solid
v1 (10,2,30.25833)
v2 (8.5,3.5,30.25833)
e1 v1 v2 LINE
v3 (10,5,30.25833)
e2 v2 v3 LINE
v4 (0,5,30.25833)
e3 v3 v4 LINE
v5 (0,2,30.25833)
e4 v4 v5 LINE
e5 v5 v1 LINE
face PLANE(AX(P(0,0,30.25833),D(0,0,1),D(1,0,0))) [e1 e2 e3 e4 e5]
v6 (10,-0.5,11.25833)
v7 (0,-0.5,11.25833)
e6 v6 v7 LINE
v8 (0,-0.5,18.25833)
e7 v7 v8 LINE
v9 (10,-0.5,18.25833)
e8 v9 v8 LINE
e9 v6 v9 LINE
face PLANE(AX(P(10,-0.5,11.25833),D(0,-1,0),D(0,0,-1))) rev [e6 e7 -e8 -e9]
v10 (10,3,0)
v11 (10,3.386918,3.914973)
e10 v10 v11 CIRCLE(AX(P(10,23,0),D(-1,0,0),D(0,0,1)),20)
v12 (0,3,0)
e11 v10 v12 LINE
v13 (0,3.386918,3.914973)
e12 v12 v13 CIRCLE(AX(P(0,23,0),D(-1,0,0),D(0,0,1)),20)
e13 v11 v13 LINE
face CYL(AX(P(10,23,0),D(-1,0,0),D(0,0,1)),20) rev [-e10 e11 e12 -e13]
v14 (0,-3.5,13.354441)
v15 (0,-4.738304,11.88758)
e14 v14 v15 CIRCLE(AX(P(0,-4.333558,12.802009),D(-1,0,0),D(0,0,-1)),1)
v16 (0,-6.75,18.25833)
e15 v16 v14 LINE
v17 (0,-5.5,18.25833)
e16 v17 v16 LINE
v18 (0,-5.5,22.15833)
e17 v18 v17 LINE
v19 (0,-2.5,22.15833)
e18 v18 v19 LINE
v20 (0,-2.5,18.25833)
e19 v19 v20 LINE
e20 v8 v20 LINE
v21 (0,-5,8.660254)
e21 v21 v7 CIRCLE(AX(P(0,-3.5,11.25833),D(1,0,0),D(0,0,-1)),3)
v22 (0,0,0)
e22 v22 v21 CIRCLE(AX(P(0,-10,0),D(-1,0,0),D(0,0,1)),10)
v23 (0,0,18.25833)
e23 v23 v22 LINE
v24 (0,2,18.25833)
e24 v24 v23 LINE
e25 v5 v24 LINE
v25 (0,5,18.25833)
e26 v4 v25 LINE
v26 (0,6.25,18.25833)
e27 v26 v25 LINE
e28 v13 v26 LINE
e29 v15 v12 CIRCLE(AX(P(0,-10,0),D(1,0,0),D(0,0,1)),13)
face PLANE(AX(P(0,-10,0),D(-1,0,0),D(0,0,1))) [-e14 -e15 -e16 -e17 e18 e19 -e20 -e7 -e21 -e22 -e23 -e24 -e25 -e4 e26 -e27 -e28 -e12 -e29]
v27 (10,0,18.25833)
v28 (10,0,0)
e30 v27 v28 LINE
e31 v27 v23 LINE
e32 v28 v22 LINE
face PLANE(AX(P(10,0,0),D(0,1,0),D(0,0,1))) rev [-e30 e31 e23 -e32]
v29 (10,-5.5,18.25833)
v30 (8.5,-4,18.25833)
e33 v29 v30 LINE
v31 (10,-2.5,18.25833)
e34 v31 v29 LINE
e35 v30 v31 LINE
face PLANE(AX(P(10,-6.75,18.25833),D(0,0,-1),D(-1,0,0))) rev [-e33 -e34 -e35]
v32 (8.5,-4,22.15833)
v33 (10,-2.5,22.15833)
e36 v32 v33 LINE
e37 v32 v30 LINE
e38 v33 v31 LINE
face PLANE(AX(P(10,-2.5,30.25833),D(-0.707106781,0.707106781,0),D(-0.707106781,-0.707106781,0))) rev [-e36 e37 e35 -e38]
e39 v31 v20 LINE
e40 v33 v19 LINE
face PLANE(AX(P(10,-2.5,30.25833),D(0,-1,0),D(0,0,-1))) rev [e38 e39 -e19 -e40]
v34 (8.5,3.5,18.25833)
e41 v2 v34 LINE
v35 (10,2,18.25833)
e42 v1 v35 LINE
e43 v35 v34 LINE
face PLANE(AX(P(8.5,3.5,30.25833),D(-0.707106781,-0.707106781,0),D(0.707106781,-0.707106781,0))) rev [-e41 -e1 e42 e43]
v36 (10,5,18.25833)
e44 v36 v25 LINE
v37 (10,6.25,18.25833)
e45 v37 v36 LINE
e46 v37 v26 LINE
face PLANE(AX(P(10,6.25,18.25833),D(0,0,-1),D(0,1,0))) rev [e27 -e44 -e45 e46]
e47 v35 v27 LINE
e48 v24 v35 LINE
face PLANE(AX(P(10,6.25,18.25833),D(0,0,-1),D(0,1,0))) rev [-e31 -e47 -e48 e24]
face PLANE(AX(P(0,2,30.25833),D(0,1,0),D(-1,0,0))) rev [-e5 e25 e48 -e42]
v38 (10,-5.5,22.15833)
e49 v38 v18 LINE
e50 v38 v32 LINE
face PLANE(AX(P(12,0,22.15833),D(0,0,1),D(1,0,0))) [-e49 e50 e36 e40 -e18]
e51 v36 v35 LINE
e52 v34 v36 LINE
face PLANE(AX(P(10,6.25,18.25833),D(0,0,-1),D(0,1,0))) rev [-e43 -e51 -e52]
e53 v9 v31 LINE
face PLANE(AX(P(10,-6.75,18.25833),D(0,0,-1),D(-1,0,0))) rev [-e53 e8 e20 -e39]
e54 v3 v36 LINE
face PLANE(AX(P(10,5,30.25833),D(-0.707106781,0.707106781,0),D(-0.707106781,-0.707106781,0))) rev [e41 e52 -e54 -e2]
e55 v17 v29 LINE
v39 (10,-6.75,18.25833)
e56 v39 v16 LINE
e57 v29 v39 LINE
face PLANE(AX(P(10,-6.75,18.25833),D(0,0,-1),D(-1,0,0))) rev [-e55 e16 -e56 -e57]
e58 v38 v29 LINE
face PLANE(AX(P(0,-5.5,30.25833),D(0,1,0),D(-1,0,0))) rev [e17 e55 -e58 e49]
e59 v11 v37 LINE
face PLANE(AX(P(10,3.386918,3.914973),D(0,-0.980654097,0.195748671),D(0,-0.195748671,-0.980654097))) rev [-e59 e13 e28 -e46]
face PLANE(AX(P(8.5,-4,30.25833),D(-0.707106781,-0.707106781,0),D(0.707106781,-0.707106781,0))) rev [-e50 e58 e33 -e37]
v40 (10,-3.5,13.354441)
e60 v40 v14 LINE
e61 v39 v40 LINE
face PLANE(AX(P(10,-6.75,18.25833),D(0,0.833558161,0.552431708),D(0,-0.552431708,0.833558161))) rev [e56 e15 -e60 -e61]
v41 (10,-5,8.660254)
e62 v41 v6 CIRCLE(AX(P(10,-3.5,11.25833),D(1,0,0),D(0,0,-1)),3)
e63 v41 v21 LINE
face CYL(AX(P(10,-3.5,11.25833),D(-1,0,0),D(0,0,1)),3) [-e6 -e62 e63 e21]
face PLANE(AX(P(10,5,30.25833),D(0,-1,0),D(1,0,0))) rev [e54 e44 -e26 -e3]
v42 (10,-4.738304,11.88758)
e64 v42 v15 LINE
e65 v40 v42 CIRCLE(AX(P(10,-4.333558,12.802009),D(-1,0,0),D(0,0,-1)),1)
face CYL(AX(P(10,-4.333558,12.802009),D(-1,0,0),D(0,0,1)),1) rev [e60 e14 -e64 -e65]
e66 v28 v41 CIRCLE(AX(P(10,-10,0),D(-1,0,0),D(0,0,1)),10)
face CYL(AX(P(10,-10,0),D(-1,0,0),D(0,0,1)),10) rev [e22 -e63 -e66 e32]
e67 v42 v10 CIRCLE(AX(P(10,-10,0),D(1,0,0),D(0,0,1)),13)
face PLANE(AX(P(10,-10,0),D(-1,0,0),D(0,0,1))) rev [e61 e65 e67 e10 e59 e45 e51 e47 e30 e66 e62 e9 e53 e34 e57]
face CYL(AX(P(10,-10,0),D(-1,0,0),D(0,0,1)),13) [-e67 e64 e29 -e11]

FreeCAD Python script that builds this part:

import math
import FreeCAD as App
import Part
import Sketcher

V = App.Vector
Q = App.Units.Quantity

doc = App.newDocument("Part")
body = doc.addObject("PartDesign::Body", "Body")

# Sketch on YZ plane
sketch1 = body.newObject("Sketcher::SketchObject", "Sketch")
sketch1.AttachmentSupport = (doc.getObject("YZ_Plane"), [""])
sketch1.MapMode = "FlatFace"
sketch1.addGeometry([
    Part.LineSegment(V(-0.5, 11.3, 0), V(-0.5, 18.3, 0)),  # 0
    Part.LineSegment(V(-0.5, 18.3, 0), V(-6.8, 18.3, 0)),  # 1
    Part.LineSegment(V(-6.8, 18.3, 0), V(-3.5, 13.4, 0)),  # 2
    Part.ArcOfCircle(Part.Circle(V(-4.3, 12.8, 0), V(0, 0, 1), 1), math.radians(-114), math.radians(34)),  # 3
    Part.ArcOfCircle(Part.Circle(V(-10, 0, 0), V(0, 0, 1), 13), math.radians(66), math.radians(360)),  # 4
    Part.ArcOfCircle(Part.Circle(V(23, 0, 0), V(0, 0, 1), 20), math.radians(168.71), math.radians(180)),  # 5
    Part.LineSegment(V(3.4, 3.9, 0), V(6.2, 18.3, 0)),  # 6
    Part.LineSegment(V(6.2, 18.3, 0), V(0, 18.3, 0)),  # 7
    Part.LineSegment(V(0, 18.3, 0), V(0, 0, 0)),  # 8
    Part.ArcOfCircle(Part.Circle(V(-10, 0, 0), V(0, 0, 1), 10), math.radians(60), math.radians(360)),  # 9
    Part.ArcOfCircle(Part.Circle(V(-3.5, 11.3, 0), V(0, 0, 1), 3), math.radians(-120), math.radians(0)),  # 10
], False)
sketch1.addConstraint([
    Sketcher.Constraint("Coincident", 0, 2, 1, 1),
    Sketcher.Constraint("Coincident", 1, 2, 2, 1),
    Sketcher.Constraint("Tangent", 2, 2, 3, 2),
    Sketcher.Constraint("Tangent", 3, 1, 4, 1),
    Sketcher.Constraint("Tangent", 4, 2, 5, 2),
    Sketcher.Constraint("Tangent", 5, 1, 6, 1),
    Sketcher.Constraint("Coincident", 6, 2, 7, 1),
    Sketcher.Constraint("Coincident", 7, 2, 8, 1),
    Sketcher.Constraint("Tangent", 8, 2, 9, 2),
    Sketcher.Constraint("Tangent", 9, 1, 10, 1),
    Sketcher.Constraint("Tangent", 10, 2, 0, 1),
    Sketcher.Constraint("Vertical", 0),
    Sketcher.Constraint("Horizontal", 1),
    Sketcher.Constraint("Horizontal", 7),
    Sketcher.Constraint("Vertical", 8),
    Sketcher.Constraint("Coincident", 8, 2, -1, 1),
    Sketcher.Constraint("Coincident", 9, 3, 4, 3),
    Sketcher.Constraint("PointOnObject", 5, 3, -1),
    Sketcher.Constraint("Horizontal", 1, 2, 6, 2),
    Sketcher.Constraint("Vertical", 10, 3, 2, 2),
    Sketcher.Constraint("Equal", 1, 7),
    Sketcher.Constraint("Radius", 3, Q("1 mm")),
    Sketcher.Constraint("Radius", 4, Q("13 mm")),
    Sketcher.Constraint("Radius", 5, Q("20 mm")),
    Sketcher.Constraint("Radius", 9, Q("10 mm")),
    Sketcher.Constraint("Radius", 10, Q("3 mm")),
    Sketcher.Constraint("DistanceY", 0, 1, 0, 2, Q("7 mm")),
    Sketcher.Constraint("DistanceX", 9, 1, -1, 1, Q("5 mm")),
    Sketcher.Constraint("DistanceX", 1, 2, 1, 1, Q("6.25 mm")),
])
pad1 = body.newObject("PartDesign::Pad", "Pad")
pad1.Profile = sketch1
pad1.Length = 10

# Sketch on XY plane
sketch2 = body.newObject("Sketcher::SketchObject", "Sketch001")
sketch2.AttachmentSupport = (doc.getObject("XY_Plane"), [""])
sketch2.MapMode = "FlatFace"
sketch2.AttachmentOffset = App.Placement(V(0, 0, 18.25833), App.Rotation())
sketch2.addGeometry([
    Part.LineSegment(V(0, 2, 0), V(10, 2, 0)),  # 0
    Part.LineSegment(V(10, 2, 0), V(8.5, 3.5, 0)),  # 1
    Part.LineSegment(V(8.5, 3.5, 0), V(10, 5, 0)),  # 2
    Part.LineSegment(V(10, 5, 0), V(0, 5, 0)),  # 3
    Part.LineSegment(V(0, 5, 0), V(0, 2, 0)),  # 4
    Part.LineSegment(V(0, -5.5, 0), V(10, -5.5, 0)),  # 5
    Part.LineSegment(V(10, -5.5, 0), V(8.5, -4, 0)),  # 6
    Part.LineSegment(V(8.5, -4, 0), V(10, -2.5, 0)),  # 7
    Part.LineSegment(V(10, -2.5, 0), V(0, -2.5, 0)),  # 8
    Part.LineSegment(V(0, -2.5, 0), V(0, -5.5, 0)),  # 9
], False)
sketch2.addConstraint([
    Sketcher.Constraint("Coincident", 0, 2, 1, 1),
    Sketcher.Constraint("Coincident", 1, 2, 2, 1),
    Sketcher.Constraint("Coincident", 2, 2, 3, 1),
    Sketcher.Constraint("Coincident", 3, 2, 4, 1),
    Sketcher.Constraint("Coincident", 4, 2, 0, 1),
    Sketcher.Constraint("Coincident", 5, 2, 6, 1),
    Sketcher.Constraint("Coincident", 6, 2, 7, 1),
    Sketcher.Constraint("Coincident", 7, 2, 8, 1),
    Sketcher.Constraint("Coincident", 8, 2, 9, 1),
    Sketcher.Constraint("Coincident", 9, 2, 5, 1),
    Sketcher.Constraint("Horizontal", 0),
    Sketcher.Constraint("Horizontal", 3),
    Sketcher.Constraint("Vertical", 4),
    Sketcher.Constraint("Horizontal", 5),
    Sketcher.Constraint("Horizontal", 8),
    Sketcher.Constraint("Vertical", 9),
    Sketcher.Constraint("PointOnObject", 3, 2, -2),
    Sketcher.Constraint("PointOnObject", 8, 2, -2),
    Sketcher.Constraint("Perpendicular", 1, 2),
    Sketcher.Constraint("Perpendicular", 2, 6),
    Sketcher.Constraint("Perpendicular", 6, 7),
    Sketcher.Constraint("Vertical", 0, 2, 2, 2),
    Sketcher.Constraint("Vertical", 2, 2, 5, 2),
    Sketcher.Constraint("Vertical", 1, 2, 6, 2),
    Sketcher.Constraint("Vertical", 5, 2, 7, 2),
    Sketcher.Constraint("Equal", 1, 2),
    Sketcher.Constraint("DistanceX", 0, 1, 0, 2, Q("10 mm")),
    Sketcher.Constraint("DistanceY", 4, 2, 4, 1, Q("3 mm")),
    Sketcher.Constraint("DistanceY", -1, 1, 0, 2, Q("2 mm")),
    Sketcher.Constraint("DistanceY", 6, 2, -1, 1, Q("4 mm")),
])
pad2 = body.newObject("PartDesign::Pad", "Pad001")
pad2.Profile = sketch2
pad2.Length = 12

# Sketch on YZ plane
sketch3 = body.newObject("Sketcher::SketchObject", "Sketch002")
sketch3.AttachmentSupport = (doc.getObject("YZ_Plane"), [""])
sketch3.MapMode = "FlatFace"
sketch3.addGeometry([
    Part.LineSegment(V(-2.5, 22.2, 0), V(-5.5, 22.2, 0)),
    Part.LineSegment(V(-5.5, 22.2, 0), V(-5.5, 30.3, 0)),
    Part.LineSegment(V(-5.5, 30.3, 0), V(-2.5, 30.3, 0)),
    Part.LineSegment(V(-2.5, 30.3, 0), V(-2.5, 22.2, 0)),
], False)
sketch3.addConstraint([
    Sketcher.Constraint("Coincident", 0, 2, 1, 1),
    Sketcher.Constraint("Coincident", 1, 2, 2, 1),
    Sketcher.Constraint("Coincident", 2, 2, 3, 1),
    Sketcher.Constraint("Coincident", 3, 2, 0, 1),
    Sketcher.Constraint("Horizontal", 0),
    Sketcher.Constraint("Vertical", 1),
    Sketcher.Constraint("Horizontal", 2),
    Sketcher.Constraint("Vertical", 3),
    Sketcher.Constraint("DistanceX", 0, 2, 0, 1, Q("3 mm")),
    Sketcher.Constraint("DistanceY", 1, 1, 1, 2, Q("8.1 mm")),
    Sketcher.Constraint("DistanceX", 0, 2, -1, 1, Q("5.5 mm")),
    Sketcher.Constraint("DistanceY", -1, 1, 0, 2, Q("22.15833 mm")),
])
pocket1 = body.newObject("PartDesign::Pocket", "Pocket")
pocket1.Profile = sketch3
pocket1.Length = 12
pocket1.Reversed = True

doc.recompute()
